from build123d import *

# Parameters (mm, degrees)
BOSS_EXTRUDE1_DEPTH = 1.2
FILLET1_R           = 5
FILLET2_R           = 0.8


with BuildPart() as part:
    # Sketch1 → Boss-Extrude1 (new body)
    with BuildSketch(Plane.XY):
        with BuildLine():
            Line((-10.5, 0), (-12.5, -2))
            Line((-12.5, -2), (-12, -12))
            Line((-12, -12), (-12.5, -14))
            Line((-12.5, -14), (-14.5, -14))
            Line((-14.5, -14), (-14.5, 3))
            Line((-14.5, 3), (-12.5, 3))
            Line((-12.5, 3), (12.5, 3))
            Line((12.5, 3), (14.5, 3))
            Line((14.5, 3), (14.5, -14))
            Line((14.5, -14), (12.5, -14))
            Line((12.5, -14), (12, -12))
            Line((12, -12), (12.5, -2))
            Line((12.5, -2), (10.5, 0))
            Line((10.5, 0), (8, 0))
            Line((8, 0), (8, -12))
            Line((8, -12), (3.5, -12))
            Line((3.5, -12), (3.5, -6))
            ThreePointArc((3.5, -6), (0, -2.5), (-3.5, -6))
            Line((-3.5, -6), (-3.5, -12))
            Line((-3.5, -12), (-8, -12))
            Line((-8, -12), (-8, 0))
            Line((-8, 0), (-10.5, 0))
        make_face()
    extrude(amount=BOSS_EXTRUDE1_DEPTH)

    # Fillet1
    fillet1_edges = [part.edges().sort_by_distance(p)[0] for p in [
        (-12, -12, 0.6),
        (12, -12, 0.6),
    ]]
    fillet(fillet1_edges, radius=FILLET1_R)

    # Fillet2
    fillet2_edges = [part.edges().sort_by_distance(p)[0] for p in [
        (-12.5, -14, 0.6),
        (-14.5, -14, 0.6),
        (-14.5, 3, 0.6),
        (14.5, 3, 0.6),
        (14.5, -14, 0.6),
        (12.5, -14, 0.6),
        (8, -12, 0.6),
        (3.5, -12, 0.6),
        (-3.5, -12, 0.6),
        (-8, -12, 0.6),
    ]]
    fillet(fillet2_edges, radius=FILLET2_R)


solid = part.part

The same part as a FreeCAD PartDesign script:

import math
import FreeCAD as App
import Part
import Sketcher

V = App.Vector


def edges_at(feature, points):
    """Names of the edges that pass closest to the given points."""
    edges = feature.Shape.Edges
    near = lambda p: min(range(len(edges)), key=lambda i: edges[i].distToShape(Part.Vertex(*p))[0])
    return sorted({f"Edge{near(p) + 1}" for p in points})

doc = App.newDocument("Part")
params = doc.addObject("Spreadsheet::Sheet", "Params")
for row, (alias, value) in enumerate([
    ("sketch1_radius", "3.5 mm"),
    ("sketch1_width", "2 mm"),
    ("sketch1_width2", "29 mm"),
    ("sketch1_height", "12 mm"),
    ("sketch1_height2", "6 mm"),
    ("pad1_length", "1.2 mm"),
    ("fillet_radius", "5 mm"),
    ("fillet2_radius", "0.8 mm"),
], start=1):
    params.set(f"A{row}", alias)
    params.set(f"B{row}", "=" + value)
    params.setAlias(f"B{row}", alias)

body = doc.addObject("PartDesign::Body", "Body")

# Sketch on XY plane
sketch1 = body.newObject("Sketcher::SketchObject", "Sketch")
sketch1.AttachmentSupport = (doc.getObject("XY_Plane"), [""])
sketch1.MapMode = "FlatFace"
sketch1.addGeometry(Part.LineSegment(V(-12.5, -2, 0), V(-10.5, 0, 0)), False)
sketch1.addGeometry(Part.LineSegment(V(-10.5, 0, 0), V(-8, 0, 0)), False)
sketch1.addGeometry(Part.LineSegment(V(-8, 0, 0), V(-8, -12, 0)), False)
sketch1.addGeometry(Part.LineSegment(V(-8, -12, 0), V(-3.5, -12, 0)), False)
sketch1.addGeometry(Part.LineSegment(V(-3.5, -12, 0), V(-3.5, -6, 0)), False)
sketch1.addGeometry(Part.ArcOfCircle(Part.Circle(V(0, -6, 0), V(0, 0, 1), 3.5), math.radians(0), math.radians(180)), False)
sketch1.addGeometry(Part.LineSegment(V(3.5, -6, 0), V(3.5, -12, 0)), False)
sketch1.addGeometry(Part.LineSegment(V(3.5, -12, 0), V(8, -12, 0)), False)
sketch1.addGeometry(Part.LineSegment(V(8, -12, 0), V(8, 0, 0)), False)
sketch1.addGeometry(Part.LineSegment(V(8, 0, 0), V(10.5, 0, 0)), False)
sketch1.addGeometry(Part.LineSegment(V(10.5, 0, 0), V(12.5, -2, 0)), False)
sketch1.addGeometry(Part.LineSegment(V(12.5, -2, 0), V(12, -12, 0)), False)
sketch1.addGeometry(Part.LineSegment(V(12, -12, 0), V(12.5, -14, 0)), False)
sketch1.addGeometry(Part.LineSegment(V(12.5, -14, 0), V(14.5, -14, 0)), False)
sketch1.addGeometry(Part.LineSegment(V(14.5, -14, 0), V(14.5, 3, 0)), False)
sketch1.addGeometry(Part.LineSegment(V(14.5, 3, 0), V(-14.5, 3, 0)), False)
sketch1.addGeometry(Part.LineSegment(V(-14.5, 3, 0), V(-14.5, -14, 0)), False)
sketch1.addGeometry(Part.LineSegment(V(-14.5, -14, 0), V(-12.5, -14, 0)), False)
sketch1.addGeometry(Part.LineSegment(V(-12.5, -14, 0), V(-12, -12, 0)), False)
sketch1.addGeometry(Part.LineSegment(V(-12, -12, 0), V(-12.5, -2, 0)), False)
sketch1.addConstraint(Sketcher.Constraint("Coincident", 0, 2, 1, 1))
sketch1.addConstraint(Sketcher.Constraint("Coincident", 1, 2, 2, 1))
sketch1.addConstraint(Sketcher.Constraint("Coincident", 2, 2, 3, 1))
sketch1.addConstraint(Sketcher.Constraint("Coincident", 3, 2, 4, 1))
sketch1.addConstraint(Sketcher.Constraint("Tangent", 4, 2, 5, 2))
sketch1.addConstraint(Sketcher.Constraint("Tangent", 5, 1, 6, 1))
sketch1.addConstraint(Sketcher.Constraint("Coincident", 6, 2, 7, 1))
sketch1.addConstraint(Sketcher.Constraint("Coincident", 7, 2, 8, 1))
sketch1.addConstraint(Sketcher.Constraint("Coincident", 8, 2, 9, 1))
sketch1.addConstraint(Sketcher.Constraint("Coincident", 9, 2, 10, 1))
sketch1.addConstraint(Sketcher.Constraint("Coincident", 10, 2, 11, 1))
sketch1.addConstraint(Sketcher.Constraint("Coincident", 11, 2, 12, 1))
sketch1.addConstraint(Sketcher.Constraint("Coincident", 12, 2, 13, 1))
sketch1.addConstraint(Sketcher.Constraint("Coincident", 13, 2, 14, 1))
sketch1.addConstraint(Sketcher.Constraint("Coincident", 14, 2, 15, 1))
sketch1.addConstraint(Sketcher.Constraint("Coincident", 15, 2, 16, 1))
sketch1.addConstraint(Sketcher.Constraint("Coincident", 16, 2, 17, 1))
sketch1.addConstraint(Sketcher.Constraint("Coincident", 17, 2, 18, 1))
sketch1.addConstraint(Sketcher.Constraint("Coincident", 18, 2, 19, 1))
sketch1.addConstraint(Sketcher.Constraint("Coincident", 19, 2, 0, 1))
sketch1.addConstraint(Sketcher.Constraint("Horizontal", 1))
sketch1.addConstraint(Sketcher.Constraint("Vertical", 2))
sketch1.addConstraint(Sketcher.Constraint("Horizontal", 3))
sketch1.addConstraint(Sketcher.Constraint("Vertical", 4))
sketch1.addConstraint(Sketcher.Constraint("Vertical", 6))
sketch1.addConstraint(Sketcher.Constraint("Horizontal", 7))
sketch1.addConstraint(Sketcher.Constraint("Vertical", 8))
sketch1.addConstraint(Sketcher.Constraint("Horizontal", 9))
sketch1.addConstraint(Sketcher.Constraint("Horizontal", 13))
sketch1.addConstraint(Sketcher.Constraint("Vertical", 14))
sketch1.addConstraint(Sketcher.Constraint("Horizontal", 15))
sketch1.addConstraint(Sketcher.Constraint("Vertical", 16))
sketch1.addConstraint(Sketcher.Constraint("Horizontal", 17))
sketch1.addConstraint(Sketcher.Constraint("Symmetric", 1, 2, 8, 2, -1, 1))
sketch1.addConstraint(Sketcher.Constraint("Symmetric", 3, 2, 6, 2, -2))
sketch1.addConstraint(Sketcher.Constraint("Symmetric", 0, 2, 9, 2, -2))
sketch1.addConstraint(Sketcher.Constraint("Symmetric", 13, 2, 16, 2, -2))
sketch1.addConstraint(Sketcher.Constraint("Symmetric", 11, 2, 18, 2, -2))
sketch1.addConstraint(Sketcher.Constraint("Symmetric", 10, 2, 19, 2, -2))
sketch1.addConstraint(Sketcher.Constraint("Perpendicular", 0, 10))
sketch1.addConstraint(Sketcher.Constraint("Horizontal", 7, 2, 11, 2))
sketch1.addConstraint(Sketcher.Constraint("Vertical", 10, 2, 12, 2))
sketch1.addConstraint(Sketcher.Constraint("Vertical", 17, 2, 19, 2))
sketch1.addConstraint(Sketcher.Constraint("Radius", 5, 3.5))
sketch1.addConstraint(Sketcher.Constraint("DistanceX", 13, 1, 13, 2, 2.0))
sketch1.addConstraint(Sketcher.Constraint("DistanceX", 15, 2, 15, 1, 29.0))
sketch1.addConstraint(Sketcher.Constraint("DistanceY", 2, 2, 2, 1, 12.0))
sketch1.addConstraint(Sketcher.Constraint("DistanceY", 4, 1, 4, 2, 6.0))
sketch1.addConstraint(Sketcher.Constraint("DistanceY", 14, 1, 14, 2, 17.0))
sketch1.addConstraint(Sketcher.Constraint("DistanceX", 1, 1, 1, 2, 2.5))
sketch1.addConstraint(Sketcher.Constraint("DistanceX", 3, 1, 3, 2, 4.5))
sketch1.addConstraint(Sketcher.Constraint("DistanceX", -1, 1, 11, 2, 12.0))
sketch1.addConstraint(Sketcher.Constraint("DistanceY", 12, 2, -1, 1, 14.0))
sketch1.setExpression("Constraints[43]", "Params.sketch1_radius")
sketch1.setExpression("Constraints[44]", "Params.sketch1_width")
sketch1.setExpression("Constraints[45]", "Params.sketch1_width2")
sketch1.setExpression("Constraints[46]", "Params.sketch1_height")
sketch1.setExpression("Constraints[47]", "Params.sketch1_height2")
pad1 = body.newObject("PartDesign::Pad", "Pad")
pad1.Profile = sketch1
pad1.setExpression("Length", "Params.pad1_length")
doc.recompute()

fillet = body.newObject("PartDesign::Fillet", "Fillet")
fillet.Base = (pad1, edges_at(pad1, [(-12, -12, 0.6), (12, -12, 0.6)]))
fillet.setExpression("Radius", "Params.fillet_radius")
doc.recompute()

fillet2 = body.newObject("PartDesign::Fillet", "Fillet001")
fillet2.Base = (fillet, edges_at(fillet, [
    (-12.5, -14, 0.6),
    (-14.5, -14, 0.6),
    (-14.5, 3, 0.6),
    (14.5, 3, 0.6),
    (14.5, -14, 0.6),
    (12.5, -14, 0.6),
    (8, -12, 0.6),
    (3.5, -12, 0.6),
    (-3.5, -12, 0.6),
    (-8, -12, 0.6),
]))
fillet2.setExpression("Radius", "Params.fillet2_radius")

doc.recompute()
